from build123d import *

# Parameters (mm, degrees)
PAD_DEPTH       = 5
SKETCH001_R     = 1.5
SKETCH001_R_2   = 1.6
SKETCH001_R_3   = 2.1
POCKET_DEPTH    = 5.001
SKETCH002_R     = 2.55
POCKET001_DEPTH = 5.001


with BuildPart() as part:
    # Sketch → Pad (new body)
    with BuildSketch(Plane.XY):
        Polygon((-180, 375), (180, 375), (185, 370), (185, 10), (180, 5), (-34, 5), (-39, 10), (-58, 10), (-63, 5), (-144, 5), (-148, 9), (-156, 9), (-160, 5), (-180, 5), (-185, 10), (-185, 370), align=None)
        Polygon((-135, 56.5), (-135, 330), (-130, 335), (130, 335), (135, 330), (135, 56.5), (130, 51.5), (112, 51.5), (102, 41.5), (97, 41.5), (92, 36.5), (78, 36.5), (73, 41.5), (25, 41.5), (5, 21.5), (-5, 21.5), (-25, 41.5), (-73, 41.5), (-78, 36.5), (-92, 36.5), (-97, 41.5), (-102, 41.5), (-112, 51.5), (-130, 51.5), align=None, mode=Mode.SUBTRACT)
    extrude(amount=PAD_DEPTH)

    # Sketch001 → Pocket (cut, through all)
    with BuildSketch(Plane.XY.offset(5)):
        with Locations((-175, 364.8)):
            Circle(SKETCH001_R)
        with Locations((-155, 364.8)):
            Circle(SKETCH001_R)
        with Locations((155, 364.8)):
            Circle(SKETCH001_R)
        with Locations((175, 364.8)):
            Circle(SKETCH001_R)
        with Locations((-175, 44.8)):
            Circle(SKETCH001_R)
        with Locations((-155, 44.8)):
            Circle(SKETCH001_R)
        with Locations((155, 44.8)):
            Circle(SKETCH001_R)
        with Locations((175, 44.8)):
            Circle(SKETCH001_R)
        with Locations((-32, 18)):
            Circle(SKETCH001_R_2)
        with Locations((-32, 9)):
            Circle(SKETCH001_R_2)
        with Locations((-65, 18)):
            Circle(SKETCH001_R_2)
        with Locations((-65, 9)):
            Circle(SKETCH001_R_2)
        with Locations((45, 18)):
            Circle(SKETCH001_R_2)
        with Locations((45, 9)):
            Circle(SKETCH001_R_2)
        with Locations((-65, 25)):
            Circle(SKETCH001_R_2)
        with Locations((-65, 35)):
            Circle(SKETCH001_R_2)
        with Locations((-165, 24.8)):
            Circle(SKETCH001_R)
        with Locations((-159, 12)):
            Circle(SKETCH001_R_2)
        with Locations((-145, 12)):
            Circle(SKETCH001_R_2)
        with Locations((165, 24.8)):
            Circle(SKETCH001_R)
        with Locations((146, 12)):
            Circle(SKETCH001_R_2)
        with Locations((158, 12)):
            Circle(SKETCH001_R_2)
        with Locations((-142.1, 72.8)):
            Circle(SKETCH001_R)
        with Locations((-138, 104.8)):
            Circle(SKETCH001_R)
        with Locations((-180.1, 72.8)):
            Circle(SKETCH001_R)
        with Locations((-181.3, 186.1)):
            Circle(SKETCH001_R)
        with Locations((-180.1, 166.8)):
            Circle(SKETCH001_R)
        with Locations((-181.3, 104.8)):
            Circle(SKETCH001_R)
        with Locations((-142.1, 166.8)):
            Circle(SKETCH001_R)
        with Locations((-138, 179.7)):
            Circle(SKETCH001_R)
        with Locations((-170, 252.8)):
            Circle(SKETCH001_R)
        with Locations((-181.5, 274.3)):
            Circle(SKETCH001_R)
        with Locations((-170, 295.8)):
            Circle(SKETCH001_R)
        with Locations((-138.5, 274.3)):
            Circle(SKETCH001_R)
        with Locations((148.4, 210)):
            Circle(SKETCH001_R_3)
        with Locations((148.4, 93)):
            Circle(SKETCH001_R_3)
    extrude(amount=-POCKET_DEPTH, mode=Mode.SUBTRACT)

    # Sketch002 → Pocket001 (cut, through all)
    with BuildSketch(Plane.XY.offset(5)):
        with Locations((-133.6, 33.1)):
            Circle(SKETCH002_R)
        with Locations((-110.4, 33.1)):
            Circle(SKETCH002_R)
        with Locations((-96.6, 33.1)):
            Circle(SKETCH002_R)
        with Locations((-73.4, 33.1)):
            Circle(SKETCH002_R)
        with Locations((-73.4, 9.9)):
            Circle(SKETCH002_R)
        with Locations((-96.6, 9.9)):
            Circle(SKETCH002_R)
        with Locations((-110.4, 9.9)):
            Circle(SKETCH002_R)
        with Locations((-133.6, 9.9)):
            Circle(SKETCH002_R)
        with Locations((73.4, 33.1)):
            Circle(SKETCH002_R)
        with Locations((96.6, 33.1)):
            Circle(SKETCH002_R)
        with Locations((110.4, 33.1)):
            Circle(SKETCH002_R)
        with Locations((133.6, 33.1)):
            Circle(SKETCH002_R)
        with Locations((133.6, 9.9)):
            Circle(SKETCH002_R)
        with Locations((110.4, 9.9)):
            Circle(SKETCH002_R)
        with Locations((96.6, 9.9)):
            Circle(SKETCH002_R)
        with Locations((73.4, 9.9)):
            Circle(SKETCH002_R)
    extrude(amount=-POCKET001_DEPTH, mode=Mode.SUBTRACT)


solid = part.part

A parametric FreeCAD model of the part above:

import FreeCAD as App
import Part
import Sketcher

V = App.Vector
Q = App.Units.Quantity

doc = App.newDocument("Part")
body = doc.addObject("PartDesign::Body", "Body")

# Sketch on XY plane
sketch1 = body.newObject("Sketcher::SketchObject", "Sketch")
sketch1.AttachmentSupport = (doc.getObject("XY_Plane"), [""])
sketch1.MapMode = "FlatFace"
sketch1.addGeometry(Part.LineSegment(V(180, 375, 0), V(-180, 375, 0)), False)
sketch1.addGeometry(Part.LineSegment(V(-180, 375, 0), V(-185, 370, 0)), False)
sketch1.addGeometry(Part.LineSegment(V(-185, 370, 0), V(-185, 10, 0)), False)
sketch1.addGeometry(Part.LineSegment(V(-185, 10, 0), V(-180, 5, 0)), False)
sketch1.addGeometry(Part.LineSegment(V(-180, 5, 0), V(-160, 5, 0)), False)
sketch1.addGeometry(Part.LineSegment(V(-160, 5, 0), V(-156, 9, 0)), False)
sketch1.addGeometry(Part.LineSegment(V(-156, 9, 0), V(-148, 9, 0)), False)
sketch1.addGeometry(Part.LineSegment(V(-148, 9, 0), V(-144, 5, 0)), False)
sketch1.addGeometry(Part.LineSegment(V(-144, 5, 0), V(-63, 5, 0)), False)
sketch1.addGeometry(Part.LineSegment(V(-63, 5, 0), V(-58, 10, 0)), False)
sketch1.addGeometry(Part.LineSegment(V(-58, 10, 0), V(-39, 10, 0)), False)
sketch1.addGeometry(Part.LineSegment(V(-39, 10, 0), V(-34, 5, 0)), False)
sketch1.addGeometry(Part.LineSegment(V(-34, 5, 0), V(180, 5, 0)), False)
sketch1.addGeometry(Part.LineSegment(V(180, 5, 0), V(185, 10, 0)), False)
sketch1.addGeometry(Part.LineSegment(V(185, 10, 0), V(185, 370, 0)), False)
sketch1.addGeometry(Part.LineSegment(V(185, 370, 0), V(180, 375, 0)), False)
sketch1.addGeometry(Part.LineSegment(V(-135, 56, 0), V(-135, 330, 0)), False)
sketch1.addGeometry(Part.LineSegment(V(-135, 330, 0), V(-130, 335, 0)), False)
sketch1.addGeometry(Part.LineSegment(V(-130, 335, 0), V(130, 335, 0)), False)
sketch1.addGeometry(Part.LineSegment(V(130, 335, 0), V(135, 330, 0)), False)
sketch1.addGeometry(Part.LineSegment(V(135, 330, 0), V(135, 56, 0)), False)
sketch1.addGeometry(Part.LineSegment(V(135, 56, 0), V(130, 52, 0)), False)
sketch1.addGeometry(Part.LineSegment(V(130, 52, 0), V(112, 52, 0)), False)
sketch1.addGeometry(Part.LineSegment(V(112, 52, 0), V(102, 42, 0)), False)
sketch1.addGeometry(Part.LineSegment(V(102, 42, 0), V(97, 42, 0)), False)
sketch1.addGeometry(Part.LineSegment(V(97, 42, 0), V(92, 36, 0)), False)
sketch1.addGeometry(Part.LineSegment(V(92, 36, 0), V(78, 36, 0)), False)
sketch1.addGeometry(Part.LineSegment(V(78, 36, 0), V(73, 42, 0)), False)
sketch1.addGeometry(Part.LineSegment(V(73, 42, 0), V(25, 42, 0)), False)
sketch1.addGeometry(Part.LineSegment(V(25, 42, 0), V(5, 22, 0)), False)
sketch1.addGeometry(Part.LineSegment(V(5, 22, 0), V(-5, 22, 0)), False)
sketch1.addGeometry(Part.LineSegment(V(-5, 22, 0), V(-25, 42, 0)), False)
sketch1.addGeometry(Part.LineSegment(V(-25, 42, 0), V(-73, 42, 0)), False)
sketch1.addGeometry(Part.LineSegment(V(-73, 42, 0), V(-78, 36, 0)), False)
sketch1.addGeometry(Part.LineSegment(V(-78, 36, 0), V(-92, 36, 0)), False)
sketch1.addGeometry(Part.LineSegment(V(-92, 36, 0), V(-97, 42, 0)), False)
sketch1.addGeometry(Part.LineSegment(V(-97, 42, 0), V(-102, 42, 0)), False)
sketch1.addGeometry(Part.LineSegment(V(-102, 42, 0), V(-112, 52, 0)), False)
sketch1.addGeometry(Part.LineSegment(V(-112, 52, 0), V(-130, 52, 0)), False)
sketch1.addGeometry(Part.LineSegment(V(-130, 52, 0), V(-135, 56, 0)), False)
sketch1.addConstraint(Sketcher.Constraint("Coincident", 0, 2, 1, 1))
sketch1.addConstraint(Sketcher.Constraint("Coincident", 1, 2, 2, 1))
sketch1.addConstraint(Sketcher.Constraint("Coincident", 2, 2, 3, 1))
sketch1.addConstraint(Sketcher.Constraint("Coincident", 3, 2, 4, 1))
sketch1.addConstraint(Sketcher.Constraint("Coincident", 4, 2, 5, 1))
sketch1.addConstraint(Sketcher.Constraint("Coincident", 5, 2, 6, 1))
sketch1.addConstraint(Sketcher.Constraint("Coincident", 6, 2, 7, 1))
sketch1.addConstraint(Sketcher.Constraint("Coincident", 7, 2, 8, 1))
sketch1.addConstraint(Sketcher.Constraint("Coincident", 8, 2, 9, 1))
sketch1.addConstraint(Sketcher.Constraint("Coincident", 9, 2, 10, 1))
sketch1.addConstraint(Sketcher.Constraint("Coincident", 10, 2, 11, 1))
sketch1.addConstraint(Sketcher.Constraint("Coincident", 11, 2, 12, 1))
sketch1.addConstraint(Sketcher.Constraint("Coincident", 12, 2, 13, 1))
sketch1.addConstraint(Sketcher.Constraint("Coincident", 13, 2, 14, 1))
sketch1.addConstraint(Sketcher.Constraint("Coincident", 14, 2, 15, 1))
sketch1.addConstraint(Sketcher.Constraint("Coincident", 15, 2, 0, 1))
sketch1.addConstraint(Sketcher.Constraint("Coincident", 16, 2, 17, 1))
sketch1.addConstraint(Sketcher.Constraint("Coincident", 17, 2, 18, 1))
sketch1.addConstraint(Sketcher.Constraint("Coincident", 18, 2, 19, 1))
sketch1.addConstraint(Sketcher.Constraint("Coincident", 19, 2, 20, 1))
sketch1.addConstraint(Sketcher.Constraint("Coincident", 20, 2, 21, 1))
sketch1.addConstraint(Sketcher.Constraint("Coincident", 21, 2, 22, 1))
sketch1.addConstraint(Sketcher.Constraint("Coincident", 22, 2, 23, 1))
sketch1.addConstraint(Sketcher.Constraint("Coincident", 23, 2, 24, 1))
sketch1.addConstraint(Sketcher.Constraint("Coincident", 24, 2, 25, 1))
sketch1.addConstraint(Sketcher.Constraint("Coincident", 25, 2, 26, 1))
sketch1.addConstraint(Sketcher.Constraint("Coincident", 26, 2, 27, 1))
sketch1.addConstraint(Sketcher.Constraint("Coincident", 27, 2, 28, 1))
sketch1.addConstraint(Sketcher.Constraint("Coincident", 28, 2, 29, 1))
sketch1.addConstraint(Sketcher.Constraint("Coincident", 29, 2, 30, 1))
sketch1.addConstraint(Sketcher.Constraint("Coincident", 30, 2, 31, 1))
sketch1.addConstraint(Sketcher.Constraint("Coincident", 31, 2, 32, 1))
sketch1.addConstraint(Sketcher.Constraint("Coincident", 32, 2, 33, 1))
sketch1.addConstraint(Sketcher.Constraint("Coincident", 33, 2, 34, 1))
sketch1.addConstraint(Sketcher.Constraint("Coincident", 34, 2, 35, 1))
sketch1.addConstraint(Sketcher.Constraint("Coincident", 35, 2, 36, 1))
sketch1.addConstraint(Sketcher.Constraint("Coincident", 36, 2, 37, 1))
sketch1.addConstraint(Sketcher.Constraint("Coincident", 37, 2, 38, 1))
sketch1.addConstraint(Sketcher.Constraint("Coincident", 38, 2, 39, 1))
sketch1.addConstraint(Sketcher.Constraint("Coincident", 39, 2, 16, 1))
sketch1.addConstraint(Sketcher.Constraint("Horizontal", 0))
sketch1.addConstraint(Sketcher.Constraint("Vertical", 2))
sketch1.addConstraint(Sketcher.Constraint("Horizontal", 4))
sketch1.addConstraint(Sketcher.Constraint("Horizontal", 6))
sketch1.addConstraint(Sketcher.Constraint("Horizontal", 8))
sketch1.addConstraint(Sketcher.Constraint("Horizontal", 10))
sketch1.addConstraint(Sketcher.Constraint("Horizontal", 12))
sketch1.addConstraint(Sketcher.Constraint("Vertical", 14))
sketch1.addConstraint(Sketcher.Constraint("Vertical", 16))
sketch1.addConstraint(Sketcher.Constraint("Horizontal", 18))
sketch1.addConstraint(Sketcher.Constraint("Vertical", 20))
sketch1.addConstraint(Sketcher.Constraint("Horizontal", 22))
sketch1.addConstraint(Sketcher.Constraint("Horizontal", 24))
sketch1.addConstraint(Sketcher.Constraint("Horizontal", 26))
sketch1.addConstraint(Sketcher.Constraint("Horizontal", 28))
sketch1.addConstraint(Sketcher.Constraint("Horizontal", 30))
sketch1.addConstraint(Sketcher.Constraint("Horizontal", 32))
sketch1.addConstraint(Sketcher.Constraint("Horizontal", 34))
sketch1.addConstraint(Sketcher.Constraint("Horizontal", 36))
sketch1.addConstraint(Sketcher.Constraint("Horizontal", 38))
sketch1.addConstraint(Sketcher.Constraint("Symmetric", 3, 2, 12, 2, -2))
sketch1.addConstraint(Sketcher.Constraint("Symmetric", 2, 2, 13, 2, -2))
sketch1.addConstraint(Sketcher.Constraint("Symmetric", 16, 2, 19, 2, -2))
sketch1.addConstraint(Sketcher.Constraint("Symmetric", 28, 2, 31, 2, -2))
sketch1.addConstraint(Sketcher.Constraint("Symmetric", 26, 2, 33, 2, -2))
sketch1.addConstraint(Sketcher.Constraint("Symmetric", 24, 2, 35, 2, -2))
sketch1.addConstraint(Sketcher.Constraint("Symmetric", 22, 2, 37, 2, -2))
sketch1.addConstraint(Sketcher.Constraint("Perpendicular", 1, 3))
sketch1.addConstraint(Sketcher.Constraint("Perpendicular", 3, 5))
sketch1.addConstraint(Sketcher.Constraint("Perpendicular", 5, 7))
sketch1.addConstraint(Sketcher.Constraint("Perpendicular", 7, 9))
sketch1.addConstraint(Sketcher.Constraint("Perpendicular", 9, 11))
sketch1.addConstraint(Sketcher.Constraint("Perpendicular", 11, 13))
sketch1.addConstraint(Sketcher.Constraint("Perpendicular", 13, 15))
sketch1.addConstraint(Sketcher.Constraint("Perpendicular", 15, 17))
sketch1.addConstraint(Sketcher.Constraint("Perpendicular", 17, 19))
sketch1.addConstraint(Sketcher.Constraint("Perpendicular", 19, 21))
sketch1.addConstraint(Sketcher.Constraint("Parallel", 21, 23))
sketch1.addConstraint(Sketcher.Constraint("Parallel", 23, 25))
sketch1.addConstraint(Sketcher.Constraint("Perpendicular", 25, 27))
sketch1.addConstraint(Sketcher.Constraint("Perpendicular", 27, 29))
sketch1.addConstraint(Sketcher.Constraint("Perpendicular", 29, 31))
sketch1.addConstraint(Sketcher.Constraint("Perpendicular", 31, 33))
sketch1.addConstraint(Sketcher.Constraint("Perpendicular", 33, 35))
sketch1.addConstraint(Sketcher.Constraint("Parallel", 35, 37))
sketch1.addConstraint(Sketcher.Constraint("Parallel", 37, 39))
sketch1.addConstraint(Sketcher.Constraint("Horizontal", 4, 2, 7, 2))
sketch1.addConstraint(Sketcher.Constraint("Horizontal", 2, 2, 9, 2))
sketch1.addConstraint(Sketcher.Constraint("Horizontal", 1, 2, 14, 2))
sketch1.addConstraint(Sketcher.Constraint("Horizontal", 24, 2, 27, 2))
sketch1.addConstraint(Sketcher.Constraint("Horizontal", 20, 2, 39, 2))
sketch1.addConstraint(Sketcher.Constraint("Vertical", 0, 2, 3, 2))
sketch1.addConstraint(Sketcher.Constraint("Vertical", 18, 2, 21, 2))
sketch1.addConstraint(Sketcher.Constraint("Equal", 0, 2))
sketch1.addConstraint(Sketcher.Constraint("Equal", 15, 17))
sketch1.addConstraint(Sketcher.Constraint("Equal", 21, 25))
sketch1.addConstraint(Sketcher.Constraint("DistanceX", 0, 2, 0, 1, Q("360 mm")))
sketch1.addConstraint(Sketcher.Constraint("DistanceX", 4, 1, 4, 2, Q("20 mm")))
sketch1.addConstraint(Sketcher.Constraint("DistanceX", 6, 1, 6, 2, Q("8 mm")))
sketch1.addConstraint(Sketcher.Constraint("DistanceX", 8, 1, 8, 2, Q("81 mm")))
sketch1.addConstraint(Sketcher.Constraint("DistanceX", 10, 1, 10, 2, Q("19 mm")))
sketch1.addConstraint(Sketcher.Constraint("DistanceX", 12, 1, 12, 2, Q("214 mm")))
sketch1.addConstraint(Sketcher.Constraint("DistanceX", 18, 1, 18, 2, Q("260 mm")))
sketch1.addConstraint(Sketcher.Constraint("DistanceX", 22, 2, 22, 1, Q("18 mm")))
sketch1.addConstraint(Sketcher.Constraint("DistanceX", 24, 2, 24, 1, Q("5 mm")))
sketch1.addConstraint(Sketcher.Constraint("DistanceX", 26, 2, 26, 1, Q("14 mm")))
sketch1.addConstraint(Sketcher.Constraint("DistanceX", 28, 2, 28, 1, Q("48 mm")))
sketch1.addConstraint(Sketcher.Constraint("DistanceX", 30, 2, 30, 1, Q("10 mm")))
sketch1.addConstraint(Sketcher.Constraint("DistanceY", 16, 1, 16, 2, Q("273.5 mm")))
sketch1.addConstraint(Sketcher.Constraint("DistanceY", -1, 1, 0, 2, Q("375 mm")))
sketch1.addConstraint(Sketcher.Constraint("DistanceX", 1, 2, -1, 1, Q("185 mm")))
sketch1.addConstraint(Sketcher.Constraint("DistanceY", -1, 1, 16, 2, Q("330 mm")))
sketch1.addConstraint(Sketcher.Constraint("DistanceX", -1, 1, 23, 2, Q("102 mm")))
pad1 = body.newObject("PartDesign::Pad", "Pad")
pad1.Profile = sketch1
pad1.Length = 5

# Sketch on XY plane
sketch2 = body.newObject("Sketcher::SketchObject", "Sketch001")
sketch2.AttachmentSupport = (doc.getObject("XY_Plane"), [""])
sketch2.MapMode = "FlatFace"
sketch2.AttachmentOffset = App.Placement(V(0, 0, 5), App.Rotation())
sketch2.addGeometry(Part.Circle(V(-175, 364.8, 0), V(0, 0, 1), 1.5), False)
sketch2.addGeometry(Part.Circle(V(-155, 364.8, 0), V(0, 0, 1), 1.5), False)
sketch2.addGeometry(Part.Circle(V(155, 364.8, 0), V(0, 0, 1), 1.5), False)
sketch2.addGeometry(Part.Circle(V(175, 364.8, 0), V(0, 0, 1), 1.5), False)
sketch2.addGeometry(Part.Circle(V(-175, 44.8, 0), V(0, 0, 1), 1.5), False)
sketch2.addGeometry(Part.Circle(V(-155, 44.8, 0), V(0, 0, 1), 1.5), False)
sketch2.addGeometry(Part.Circle(V(155, 44.8, 0), V(0, 0, 1), 1.5), False)
sketch2.addGeometry(Part.Circle(V(175, 44.8, 0), V(0, 0, 1), 1.5), False)
sketch2.addGeometry(Part.Circle(V(-32, 18, 0), V(0, 0, 1), 1.6), False)
sketch2.addGeometry(Part.Circle(V(-32, 9, 0), V(0, 0, 1), 1.6), False)
sketch2.addGeometry(Part.Circle(V(-65, 18, 0), V(0, 0, 1), 1.6), False)
sketch2.addGeometry(Part.Circle(V(-65, 9, 0), V(0, 0, 1), 1.6), False)
sketch2.addGeometry(Part.Circle(V(45, 18, 0), V(0, 0, 1), 1.6), False)
sketch2.addGeometry(Part.Circle(V(45, 9, 0), V(0, 0, 1), 1.6), False)
sketch2.addGeometry(Part.Circle(V(-65, 25, 0), V(0, 0, 1), 1.6), False)
sketch2.addGeometry(Part.Circle(V(-65, 35, 0), V(0, 0, 1), 1.6), False)
sketch2.addGeometry(Part.Circle(V(-165, 24.8, 0), V(0, 0, 1), 1.5), False)
sketch2.addGeometry(Part.Circle(V(-159, 12, 0), V(0, 0, 1), 1.6), False)
sketch2.addGeometry(Part.Circle(V(-145, 12, 0), V(0, 0, 1), 1.6), False)
sketch2.addGeometry(Part.Circle(V(165, 24.8, 0), V(0, 0, 1), 1.5), False)
sketch2.addGeometry(Part.Circle(V(146, 12, 0), V(0, 0, 1), 1.6), False)
sketch2.addGeometry(Part.Circle(V(158, 12, 0), V(0, 0, 1), 1.6), False)
sketch2.addGeometry(Part.Circle(V(-142.1, 72.8, 0), V(0, 0, 1), 1.5), False)
sketch2.addGeometry(Part.Circle(V(-138, 104.8, 0), V(0, 0, 1), 1.5), False)
sketch2.addGeometry(Part.Circle(V(-180.1, 72.8, 0), V(0, 0, 1), 1.5), False)
sketch2.addGeometry(Part.Circle(V(-181.3, 186.1, 0), V(0, 0, 1), 1.5), False)
sketch2.addGeometry(Part.Circle(V(-180.1, 166.8, 0), V(0, 0, 1), 1.5), False)
sketch2.addGeometry(Part.Circle(V(-181.3, 104.8, 0), V(0, 0, 1), 1.5), False)
sketch2.addGeometry(Part.Circle(V(-142.1, 166.8, 0), V(0, 0, 1), 1.5), False)
sketch2.addGeometry(Part.Circle(V(-138, 179.7, 0), V(0, 0, 1), 1.5), False)
sketch2.addGeometry(Part.Circle(V(-170, 252.8, 0), V(0, 0, 1), 1.5), False)
sketch2.addGeometry(Part.Circle(V(-181.5, 274.3, 0), V(0, 0, 1), 1.5), False)
sketch2.addGeometry(Part.Circle(V(-170, 295.8, 0), V(0, 0, 1), 1.5), False)
sketch2.addGeometry(Part.Circle(V(-138.5, 274.3, 0), V(0, 0, 1), 1.5), False)
sketch2.addGeometry(Part.Circle(V(148.4, 210, 0), V(0, 0, 1), 2.1), False)
sketch2.addGeometry(Part.Circle(V(148.4, 93, 0), V(0, 0, 1), 2.1), False)
sketch2.addConstraint(Sketcher.Constraint("Equal", 0, 1))
sketch2.addConstraint(Sketcher.Constraint("Equal", 1, 2))
sketch2.addConstraint(Sketcher.Constraint("Equal", 2, 3))
sketch2.addConstraint(Sketcher.Constraint("Equal", 3, 4))
sketch2.addConstraint(Sketcher.Constraint("Equal", 4, 5))
sketch2.addConstraint(Sketcher.Constraint("Equal", 5, 6))
sketch2.addConstraint(Sketcher.Constraint("Equal", 6, 7))
sketch2.addConstraint(Sketcher.Constraint("Equal", 8, 9))
sketch2.addConstraint(Sketcher.Constraint("Equal", 9, 10))
sketch2.addConstraint(Sketcher.Constraint("Equal", 10, 11))
sketch2.addConstraint(Sketcher.Constraint("Equal", 11, 12))
sketch2.addConstraint(Sketcher.Constraint("Equal", 12, 13))
sketch2.addConstraint(Sketcher.Constraint("Equal", 13, 14))
sketch2.addConstraint(Sketcher.Constraint("Equal", 14, 15))
sketch2.addConstraint(Sketcher.Constraint("Equal", 7, 16))
sketch2.addConstraint(Sketcher.Constraint("Equal", 15, 17))
sketch2.addConstraint(Sketcher.Constraint("Equal", 17, 18))
sketch2.addConstraint(Sketcher.Constraint("Equal", 16, 19))
sketch2.addConstraint(Sketcher.Constraint("Equal", 18, 20))
sketch2.addConstraint(Sketcher.Constraint("Equal", 20, 21))
sketch2.addConstraint(Sketcher.Constraint("Equal", 19, 22))
sketch2.addConstraint(Sketcher.Constraint("Equal", 22, 23))
sketch2.addConstraint(Sketcher.Constraint("Equal", 23, 24))
sketch2.addConstraint(Sketcher.Constraint("Equal", 24, 25))
sketch2.addConstraint(Sketcher.Constraint("Equal", 25, 26))
sketch2.addConstraint(Sketcher.Constraint("Equal", 26, 27))
sketch2.addConstraint(Sketcher.Constraint("Equal", 27, 28))
sketch2.addConstraint(Sketcher.Constraint("Equal", 28, 29))
sketch2.addConstraint(Sketcher.Constraint("Equal", 29, 30))
sketch2.addConstraint(Sketcher.Constraint("Equal", 30, 31))
sketch2.addConstraint(Sketcher.Constraint("Equal", 31, 32))
sketch2.addConstraint(Sketcher.Constraint("Equal", 32, 33))
sketch2.addConstraint(Sketcher.Constraint("Equal", 34, 35))
sketch2.addConstraint(Sketcher.Constraint("Symmetric", 1, 3, 2, 3, -2))
sketch2.addConstraint(Sketcher.Constraint("Symmetric", 0, 3, 3, 3, -2))
sketch2.addConstraint(Sketcher.Constraint("Symmetric", 5, 3, 6, 3, -2))
sketch2.addConstraint(Sketcher.Constraint("Symmetric", 4, 3, 7, 3, -2))
sketch2.addConstraint(Sketcher.Constraint("Symmetric", 16, 3, 19, 3, -2))
sketch2.addConstraint(Sketcher.Constraint("Horizontal", 0, 3, 1, 3))
sketch2.addConstraint(Sketcher.Constraint("Horizontal", 4, 3, 5, 3))
sketch2.addConstraint(Sketcher.Constraint("Horizontal", 8, 3, 10, 3))
sketch2.addConstraint(Sketcher.Constraint("Horizontal", 9, 3, 11, 3))
sketch2.addConstraint(Sketcher.Constraint("Horizontal", 10, 3, 12, 3))
sketch2.addConstraint(Sketcher.Constraint("Horizontal", 11, 3, 13, 3))
sketch2.addConstraint(Sketcher.Constraint("Horizontal", 17, 3, 18, 3))
sketch2.addConstraint(Sketcher.Constraint("Horizontal", 18, 3, 20, 3))
sketch2.addConstraint(Sketcher.Constraint("Horizontal", 20, 3, 21, 3))
sketch2.addConstraint(Sketcher.Constraint("Horizontal", 22, 3, 24, 3))
sketch2.addConstraint(Sketcher.Constraint("Horizontal", 23, 3, 27, 3))
sketch2.addConstraint(Sketcher.Constraint("Horizontal", 26, 3, 28, 3))
sketch2.addConstraint(Sketcher.Constraint("Horizontal", 31, 3, 33, 3))
sketch2.addConstraint(Sketcher.Constraint("Vertical", 0, 3, 4, 3))
sketch2.addConstraint(Sketcher.Constraint("Vertical", 1, 3, 5, 3))
sketch2.addConstraint(Sketcher.Constraint("Vertical", 8, 3, 9, 3))
sketch2.addConstraint(Sketcher.Constraint("Vertical", 10, 3, 11, 3))
sketch2.addConstraint(Sketcher.Constraint("Vertical", 12, 3, 13, 3))
sketch2.addConstraint(Sketcher.Constraint("Vertical", 11, 3, 14, 3))
sketch2.addConstraint(Sketcher.Constraint("Vertical", 14, 3, 15, 3))
sketch2.addConstraint(Sketcher.Constraint("Vertical", 24, 3, 26, 3))
sketch2.addConstraint(Sketcher.Constraint("Vertical", 25, 3, 27, 3))
sketch2.addConstraint(Sketcher.Constraint("Vertical", 22, 3, 28, 3))
sketch2.addConstraint(Sketcher.Constraint("Vertical", 23, 3, 29, 3))
sketch2.addConstraint(Sketcher.Constraint("Vertical", 30, 3, 32, 3))
sketch2.addConstraint(Sketcher.Constraint("Vertical", 34, 3, 35, 3))
sketch2.addConstraint(Sketcher.Constraint("Diameter", 0, Q("3 mm")))
sketch2.addConstraint(Sketcher.Constraint("Diameter", 8, Q("3.2 mm")))
sketch2.addConstraint(Sketcher.Constraint("Diameter", 34, Q("4.2 mm")))
sketch2.addConstraint(Sketcher.Constraint("DistanceX", 0, 3, -1, 1, Q("175 mm")))
sketch2.addConstraint(Sketcher.Constraint("DistanceX", 1, 3, -1, 1, Q("155 mm")))
sketch2.addConstraint(Sketcher.Constraint("DistanceX", 8, 3, -1, 1, Q("32 mm")))
sketch2.addConstraint(Sketcher.Constraint("DistanceY", -1, 1, 8, 3, Q("18 mm")))
sketch2.addConstraint(Sketcher.Constraint("DistanceY", -1, 1, 9, 3, Q("9 mm")))
sketch2.addConstraint(Sketcher.Constraint("DistanceX", 10, 3, -1, 1, Q("65 mm")))
sketch2.addConstraint(Sketcher.Constraint("DistanceX", -1, 1, 12, 3, Q("45 mm")))
sketch2.addConstraint(Sketcher.Constraint("DistanceY", -1, 1, 14, 3, Q("25 mm")))
sketch2.addConstraint(Sketcher.Constraint("DistanceY", -1, 1, 15, 3, Q("35 mm")))
sketch2.addConstraint(Sketcher.Constraint("DistanceX", 16, 3, -1, 1, Q("165 mm")))
sketch2.addConstraint(Sketcher.Constraint("DistanceX", 17, 3, -1, 1, Q("159 mm")))
sketch2.addConstraint(Sketcher.Constraint("DistanceY", -1, 1, 17, 3, Q("12 mm")))
sketch2.addConstraint(Sketcher.Constraint("DistanceX", 18, 3, -1, 1, Q("145 mm")))
sketch2.addConstraint(Sketcher.Constraint("DistanceX", -1, 1, 20, 3, Q("146 mm")))
sketch2.addConstraint(Sketcher.Constraint("DistanceX", -1, 1, 21, 3, Q("158 mm")))
sketch2.addConstraint(Sketcher.Constraint("DistanceX", 23, 3, -1, 1, Q("138 mm")))
sketch2.addConstraint(Sketcher.Constraint("DistanceX", 30, 3, -1, 1, Q("170 mm")))
sketch2.addConstraint(Sketcher.Constraint("DistanceY", -1, 1, 34, 3, Q("210 mm")))
sketch2.addConstraint(Sketcher.Constraint("DistanceY", -1, 1, 35, 3, Q("93 mm")))
sketch2.addConstraint(Sketcher.Constraint("DistanceY", 4, 3, 0, 3, Q("320 mm")))
sketch2.addConstraint(Sketcher.Constraint("DistanceY", 16, 3, 4, 3, Q("20 mm")))
sketch2.addConstraint(Sketcher.Constraint("DistanceY", 5, 3, 22, 3, Q("28 mm")))
sketch2.addConstraint(Sketcher.Constraint("DistanceY", 22, 3, 23, 3, Q("32 mm")))
sketch2.addConstraint(Sketcher.Constraint("DistanceX", 24, 3, 22, 3, Q("38 mm")))
sketch2.addConstraint(Sketcher.Constraint("DistanceY", 23, 3, 26, 3, Q("62 mm")))
sketch2.addConstraint(Sketcher.Constraint("DistanceY", 26, 3, 30, 3, Q("86 mm")))
sketch2.addConstraint(Sketcher.Constraint("DistanceY", 30, 3, 32, 3, Q("43 mm")))
sketch2.addConstraint(Sketcher.Constraint("DistanceX", 31, 3, 33, 3, Q("43 mm")))
sketch2.addConstraint(Sketcher.Constraint("DistanceY", -1, 1, 0, 3, Q("364.8 mm")))
sketch2.addConstraint(Sketcher.Constraint("DistanceX", 22, 3, -1, 1, Q("142.1 mm")))
sketch2.addConstraint(Sketcher.Constraint("DistanceX", 25, 3, -1, 1, Q("181.3 mm")))
sketch2.addConstraint(Sketcher.Constraint("DistanceY", -1, 1, 25, 3, Q("186.1 mm")))
sketch2.addConstraint(Sketcher.Constraint("DistanceY", -1, 1, 29, 3, Q("179.7 mm")))
sketch2.addConstraint(Sketcher.Constraint("DistanceX", 31, 3, -1, 1, Q("181.5 mm")))
sketch2.addConstraint(Sketcher.Constraint("DistanceY", -1, 1, 31, 3, Q("274.3 mm")))
sketch2.addConstraint(Sketcher.Constraint("DistanceX", -1, 1, 34, 3, Q("148.4 mm")))
pocket1 = body.newObject("PartDesign::Pocket", "Pocket")
pocket1.Profile = sketch2
pocket1.Type = "ThroughAll"

# Sketch on XY plane
sketch3 = body.newObject("Sketcher::SketchObject", "Sketch002")
sketch3.AttachmentSupport = (doc.getObject("XY_Plane"), [""])
sketch3.MapMode = "FlatFace"
sketch3.AttachmentOffset = App.Placement(V(0, 0, 5), App.Rotation())
sketch3.addGeometry(Part.Circle(V(-133.6, 33.1, 0), V(0, 0, 1), 2.5), False)
sketch3.addGeometry(Part.Circle(V(-110.4, 33.1, 0), V(0, 0, 1), 2.5), False)
sketch3.addGeometry(Part.Circle(V(-96.6, 33.1, 0), V(0, 0, 1), 2.5), False)
sketch3.addGeometry(Part.Circle(V(-73.4, 33.1, 0), V(0, 0, 1), 2.5), False)
sketch3.addGeometry(Part.Circle(V(-73.4, 9.9, 0), V(0, 0, 1), 2.5), False)
sketch3.addGeometry(Part.Circle(V(-96.6, 9.9, 0), V(0, 0, 1), 2.5), False)
sketch3.addGeometry(Part.Circle(V(-110.4, 9.9, 0), V(0, 0, 1), 2.5), False)
sketch3.addGeometry(Part.Circle(V(-133.6, 9.9, 0), V(0, 0, 1), 2.5), False)
sketch3.addGeometry(Part.Circle(V(73.4, 33.1, 0), V(0, 0, 1), 2.5), False)
sketch3.addGeometry(Part.Circle(V(96.6, 33.1, 0), V(0, 0, 1), 2.5), False)
sketch3.addGeometry(Part.Circle(V(110.4, 33.1, 0), V(0, 0, 1), 2.5), False)
sketch3.addGeometry(Part.Circle(V(133.6, 33.1, 0), V(0, 0, 1), 2.5), False)
sketch3.addGeometry(Part.Circle(V(133.6, 9.9, 0), V(0, 0, 1), 2.5), False)
sketch3.addGeometry(Part.Circle(V(110.4, 9.9, 0), V(0, 0, 1), 2.5), False)
sketch3.addGeometry(Part.Circle(V(96.6, 9.9, 0), V(0, 0, 1), 2.5), False)
sketch3.addGeometry(Part.Circle(V(73.4, 9.9, 0), V(0, 0, 1), 2.5), False)
sketch3.addConstraint(Sketcher.Constraint("Equal", 0, 1))
sketch3.addConstraint(Sketcher.Constraint("Equal", 1, 2))
sketch3.addConstraint(Sketcher.Constraint("Equal", 2, 3))
sketch3.addConstraint(Sketcher.Constraint("Equal", 3, 4))
sketch3.addConstraint(Sketcher.Constraint("Equal", 4, 5))
sketch3.addConstraint(Sketcher.Constraint("Equal", 5, 6))
sketch3.addConstraint(Sketcher.Constraint("Equal", 6, 7))
sketch3.addConstraint(Sketcher.Constraint("Equal", 7, 8))
sketch3.addConstraint(Sketcher.Constraint("Equal", 8, 9))
sketch3.addConstraint(Sketcher.Constraint("Equal", 9, 10))
sketch3.addConstraint(Sketcher.Constraint("Equal", 10, 11))
sketch3.addConstraint(Sketcher.Constraint("Equal", 11, 12))
sketch3.addConstraint(Sketcher.Constraint("Equal", 12, 13))
sketch3.addConstraint(Sketcher.Constraint("Equal", 13, 14))
sketch3.addConstraint(Sketcher.Constraint("Equal", 14, 15))
sketch3.addConstraint(Sketcher.Constraint("Symmetric", 3, 3, 8, 3, -2))
sketch3.addConstraint(Sketcher.Constraint("Symmetric", 2, 3, 9, 3, -2))
sketch3.addConstraint(Sketcher.Constraint("Symmetric", 1, 3, 10, 3, -2))
sketch3.addConstraint(Sketcher.Constraint("Symmetric", 0, 3, 11, 3, -2))
sketch3.addConstraint(Sketcher.Constraint("Symmetric", 7, 3, 12, 3, -2))
sketch3.addConstraint(Sketcher.Constraint("Symmetric", 6, 3, 13, 3, -2))
sketch3.addConstraint(Sketcher.Constraint("Symmetric", 5, 3, 14, 3, -2))
sketch3.addConstraint(Sketcher.Constraint("Symmetric", 4, 3, 15, 3, -2))
sketch3.addConstraint(Sketcher.Constraint("Horizontal", 0, 3, 1, 3))
sketch3.addConstraint(Sketcher.Constraint("Horizontal", 1, 3, 2, 3))
sketch3.addConstraint(Sketcher.Constraint("Horizontal", 2, 3, 3, 3))
sketch3.addConstraint(Sketcher.Constraint("Horizontal", 4, 3, 5, 3))
sketch3.addConstraint(Sketcher.Constraint("Horizontal", 5, 3, 6, 3))
sketch3.addConstraint(Sketcher.Constraint("Horizontal", 6, 3, 7, 3))
sketch3.addConstraint(Sketcher.Constraint("Vertical", 3, 3, 4, 3))
sketch3.addConstraint(Sketcher.Constraint("Vertical", 2, 3, 5, 3))
sketch3.addConstraint(Sketcher.Constraint("Vertical", 1, 3, 6, 3))
sketch3.addConstraint(Sketcher.Constraint("Vertical", 0, 3, 7, 3))
sketch3.addConstraint(Sketcher.Constraint("Diameter", 0, Q("5.1 mm")))
sketch3.addConstraint(Sketcher.Constraint("DistanceX", 0, 3, 2, 3, Q("37 mm")))
sketch3.addConstraint(Sketcher.Constraint("DistanceX", 1, 3, 3, 3, Q("37 mm")))
sketch3.addConstraint(Sketcher.Constraint("DistanceX", 2, 3, 8, 3, Q("170 mm")))
sketch3.addConstraint(Sketcher.Constraint("DistanceX", 0, 3, -1, 1, Q("133.6 mm")))
sketch3.addConstraint(Sketcher.Constraint("DistanceY", -1, 1, 0, 3, Q("33.1 mm")))
sketch3.addConstraint(Sketcher.Constraint("DistanceY", -1, 1, 4, 3, Q("9.9 mm")))
pocket2 = body.newObject("PartDesign::Pocket", "Pocket001")
pocket2.Profile = sketch3
pocket2.Type = "ThroughAll"

doc.recompute()
